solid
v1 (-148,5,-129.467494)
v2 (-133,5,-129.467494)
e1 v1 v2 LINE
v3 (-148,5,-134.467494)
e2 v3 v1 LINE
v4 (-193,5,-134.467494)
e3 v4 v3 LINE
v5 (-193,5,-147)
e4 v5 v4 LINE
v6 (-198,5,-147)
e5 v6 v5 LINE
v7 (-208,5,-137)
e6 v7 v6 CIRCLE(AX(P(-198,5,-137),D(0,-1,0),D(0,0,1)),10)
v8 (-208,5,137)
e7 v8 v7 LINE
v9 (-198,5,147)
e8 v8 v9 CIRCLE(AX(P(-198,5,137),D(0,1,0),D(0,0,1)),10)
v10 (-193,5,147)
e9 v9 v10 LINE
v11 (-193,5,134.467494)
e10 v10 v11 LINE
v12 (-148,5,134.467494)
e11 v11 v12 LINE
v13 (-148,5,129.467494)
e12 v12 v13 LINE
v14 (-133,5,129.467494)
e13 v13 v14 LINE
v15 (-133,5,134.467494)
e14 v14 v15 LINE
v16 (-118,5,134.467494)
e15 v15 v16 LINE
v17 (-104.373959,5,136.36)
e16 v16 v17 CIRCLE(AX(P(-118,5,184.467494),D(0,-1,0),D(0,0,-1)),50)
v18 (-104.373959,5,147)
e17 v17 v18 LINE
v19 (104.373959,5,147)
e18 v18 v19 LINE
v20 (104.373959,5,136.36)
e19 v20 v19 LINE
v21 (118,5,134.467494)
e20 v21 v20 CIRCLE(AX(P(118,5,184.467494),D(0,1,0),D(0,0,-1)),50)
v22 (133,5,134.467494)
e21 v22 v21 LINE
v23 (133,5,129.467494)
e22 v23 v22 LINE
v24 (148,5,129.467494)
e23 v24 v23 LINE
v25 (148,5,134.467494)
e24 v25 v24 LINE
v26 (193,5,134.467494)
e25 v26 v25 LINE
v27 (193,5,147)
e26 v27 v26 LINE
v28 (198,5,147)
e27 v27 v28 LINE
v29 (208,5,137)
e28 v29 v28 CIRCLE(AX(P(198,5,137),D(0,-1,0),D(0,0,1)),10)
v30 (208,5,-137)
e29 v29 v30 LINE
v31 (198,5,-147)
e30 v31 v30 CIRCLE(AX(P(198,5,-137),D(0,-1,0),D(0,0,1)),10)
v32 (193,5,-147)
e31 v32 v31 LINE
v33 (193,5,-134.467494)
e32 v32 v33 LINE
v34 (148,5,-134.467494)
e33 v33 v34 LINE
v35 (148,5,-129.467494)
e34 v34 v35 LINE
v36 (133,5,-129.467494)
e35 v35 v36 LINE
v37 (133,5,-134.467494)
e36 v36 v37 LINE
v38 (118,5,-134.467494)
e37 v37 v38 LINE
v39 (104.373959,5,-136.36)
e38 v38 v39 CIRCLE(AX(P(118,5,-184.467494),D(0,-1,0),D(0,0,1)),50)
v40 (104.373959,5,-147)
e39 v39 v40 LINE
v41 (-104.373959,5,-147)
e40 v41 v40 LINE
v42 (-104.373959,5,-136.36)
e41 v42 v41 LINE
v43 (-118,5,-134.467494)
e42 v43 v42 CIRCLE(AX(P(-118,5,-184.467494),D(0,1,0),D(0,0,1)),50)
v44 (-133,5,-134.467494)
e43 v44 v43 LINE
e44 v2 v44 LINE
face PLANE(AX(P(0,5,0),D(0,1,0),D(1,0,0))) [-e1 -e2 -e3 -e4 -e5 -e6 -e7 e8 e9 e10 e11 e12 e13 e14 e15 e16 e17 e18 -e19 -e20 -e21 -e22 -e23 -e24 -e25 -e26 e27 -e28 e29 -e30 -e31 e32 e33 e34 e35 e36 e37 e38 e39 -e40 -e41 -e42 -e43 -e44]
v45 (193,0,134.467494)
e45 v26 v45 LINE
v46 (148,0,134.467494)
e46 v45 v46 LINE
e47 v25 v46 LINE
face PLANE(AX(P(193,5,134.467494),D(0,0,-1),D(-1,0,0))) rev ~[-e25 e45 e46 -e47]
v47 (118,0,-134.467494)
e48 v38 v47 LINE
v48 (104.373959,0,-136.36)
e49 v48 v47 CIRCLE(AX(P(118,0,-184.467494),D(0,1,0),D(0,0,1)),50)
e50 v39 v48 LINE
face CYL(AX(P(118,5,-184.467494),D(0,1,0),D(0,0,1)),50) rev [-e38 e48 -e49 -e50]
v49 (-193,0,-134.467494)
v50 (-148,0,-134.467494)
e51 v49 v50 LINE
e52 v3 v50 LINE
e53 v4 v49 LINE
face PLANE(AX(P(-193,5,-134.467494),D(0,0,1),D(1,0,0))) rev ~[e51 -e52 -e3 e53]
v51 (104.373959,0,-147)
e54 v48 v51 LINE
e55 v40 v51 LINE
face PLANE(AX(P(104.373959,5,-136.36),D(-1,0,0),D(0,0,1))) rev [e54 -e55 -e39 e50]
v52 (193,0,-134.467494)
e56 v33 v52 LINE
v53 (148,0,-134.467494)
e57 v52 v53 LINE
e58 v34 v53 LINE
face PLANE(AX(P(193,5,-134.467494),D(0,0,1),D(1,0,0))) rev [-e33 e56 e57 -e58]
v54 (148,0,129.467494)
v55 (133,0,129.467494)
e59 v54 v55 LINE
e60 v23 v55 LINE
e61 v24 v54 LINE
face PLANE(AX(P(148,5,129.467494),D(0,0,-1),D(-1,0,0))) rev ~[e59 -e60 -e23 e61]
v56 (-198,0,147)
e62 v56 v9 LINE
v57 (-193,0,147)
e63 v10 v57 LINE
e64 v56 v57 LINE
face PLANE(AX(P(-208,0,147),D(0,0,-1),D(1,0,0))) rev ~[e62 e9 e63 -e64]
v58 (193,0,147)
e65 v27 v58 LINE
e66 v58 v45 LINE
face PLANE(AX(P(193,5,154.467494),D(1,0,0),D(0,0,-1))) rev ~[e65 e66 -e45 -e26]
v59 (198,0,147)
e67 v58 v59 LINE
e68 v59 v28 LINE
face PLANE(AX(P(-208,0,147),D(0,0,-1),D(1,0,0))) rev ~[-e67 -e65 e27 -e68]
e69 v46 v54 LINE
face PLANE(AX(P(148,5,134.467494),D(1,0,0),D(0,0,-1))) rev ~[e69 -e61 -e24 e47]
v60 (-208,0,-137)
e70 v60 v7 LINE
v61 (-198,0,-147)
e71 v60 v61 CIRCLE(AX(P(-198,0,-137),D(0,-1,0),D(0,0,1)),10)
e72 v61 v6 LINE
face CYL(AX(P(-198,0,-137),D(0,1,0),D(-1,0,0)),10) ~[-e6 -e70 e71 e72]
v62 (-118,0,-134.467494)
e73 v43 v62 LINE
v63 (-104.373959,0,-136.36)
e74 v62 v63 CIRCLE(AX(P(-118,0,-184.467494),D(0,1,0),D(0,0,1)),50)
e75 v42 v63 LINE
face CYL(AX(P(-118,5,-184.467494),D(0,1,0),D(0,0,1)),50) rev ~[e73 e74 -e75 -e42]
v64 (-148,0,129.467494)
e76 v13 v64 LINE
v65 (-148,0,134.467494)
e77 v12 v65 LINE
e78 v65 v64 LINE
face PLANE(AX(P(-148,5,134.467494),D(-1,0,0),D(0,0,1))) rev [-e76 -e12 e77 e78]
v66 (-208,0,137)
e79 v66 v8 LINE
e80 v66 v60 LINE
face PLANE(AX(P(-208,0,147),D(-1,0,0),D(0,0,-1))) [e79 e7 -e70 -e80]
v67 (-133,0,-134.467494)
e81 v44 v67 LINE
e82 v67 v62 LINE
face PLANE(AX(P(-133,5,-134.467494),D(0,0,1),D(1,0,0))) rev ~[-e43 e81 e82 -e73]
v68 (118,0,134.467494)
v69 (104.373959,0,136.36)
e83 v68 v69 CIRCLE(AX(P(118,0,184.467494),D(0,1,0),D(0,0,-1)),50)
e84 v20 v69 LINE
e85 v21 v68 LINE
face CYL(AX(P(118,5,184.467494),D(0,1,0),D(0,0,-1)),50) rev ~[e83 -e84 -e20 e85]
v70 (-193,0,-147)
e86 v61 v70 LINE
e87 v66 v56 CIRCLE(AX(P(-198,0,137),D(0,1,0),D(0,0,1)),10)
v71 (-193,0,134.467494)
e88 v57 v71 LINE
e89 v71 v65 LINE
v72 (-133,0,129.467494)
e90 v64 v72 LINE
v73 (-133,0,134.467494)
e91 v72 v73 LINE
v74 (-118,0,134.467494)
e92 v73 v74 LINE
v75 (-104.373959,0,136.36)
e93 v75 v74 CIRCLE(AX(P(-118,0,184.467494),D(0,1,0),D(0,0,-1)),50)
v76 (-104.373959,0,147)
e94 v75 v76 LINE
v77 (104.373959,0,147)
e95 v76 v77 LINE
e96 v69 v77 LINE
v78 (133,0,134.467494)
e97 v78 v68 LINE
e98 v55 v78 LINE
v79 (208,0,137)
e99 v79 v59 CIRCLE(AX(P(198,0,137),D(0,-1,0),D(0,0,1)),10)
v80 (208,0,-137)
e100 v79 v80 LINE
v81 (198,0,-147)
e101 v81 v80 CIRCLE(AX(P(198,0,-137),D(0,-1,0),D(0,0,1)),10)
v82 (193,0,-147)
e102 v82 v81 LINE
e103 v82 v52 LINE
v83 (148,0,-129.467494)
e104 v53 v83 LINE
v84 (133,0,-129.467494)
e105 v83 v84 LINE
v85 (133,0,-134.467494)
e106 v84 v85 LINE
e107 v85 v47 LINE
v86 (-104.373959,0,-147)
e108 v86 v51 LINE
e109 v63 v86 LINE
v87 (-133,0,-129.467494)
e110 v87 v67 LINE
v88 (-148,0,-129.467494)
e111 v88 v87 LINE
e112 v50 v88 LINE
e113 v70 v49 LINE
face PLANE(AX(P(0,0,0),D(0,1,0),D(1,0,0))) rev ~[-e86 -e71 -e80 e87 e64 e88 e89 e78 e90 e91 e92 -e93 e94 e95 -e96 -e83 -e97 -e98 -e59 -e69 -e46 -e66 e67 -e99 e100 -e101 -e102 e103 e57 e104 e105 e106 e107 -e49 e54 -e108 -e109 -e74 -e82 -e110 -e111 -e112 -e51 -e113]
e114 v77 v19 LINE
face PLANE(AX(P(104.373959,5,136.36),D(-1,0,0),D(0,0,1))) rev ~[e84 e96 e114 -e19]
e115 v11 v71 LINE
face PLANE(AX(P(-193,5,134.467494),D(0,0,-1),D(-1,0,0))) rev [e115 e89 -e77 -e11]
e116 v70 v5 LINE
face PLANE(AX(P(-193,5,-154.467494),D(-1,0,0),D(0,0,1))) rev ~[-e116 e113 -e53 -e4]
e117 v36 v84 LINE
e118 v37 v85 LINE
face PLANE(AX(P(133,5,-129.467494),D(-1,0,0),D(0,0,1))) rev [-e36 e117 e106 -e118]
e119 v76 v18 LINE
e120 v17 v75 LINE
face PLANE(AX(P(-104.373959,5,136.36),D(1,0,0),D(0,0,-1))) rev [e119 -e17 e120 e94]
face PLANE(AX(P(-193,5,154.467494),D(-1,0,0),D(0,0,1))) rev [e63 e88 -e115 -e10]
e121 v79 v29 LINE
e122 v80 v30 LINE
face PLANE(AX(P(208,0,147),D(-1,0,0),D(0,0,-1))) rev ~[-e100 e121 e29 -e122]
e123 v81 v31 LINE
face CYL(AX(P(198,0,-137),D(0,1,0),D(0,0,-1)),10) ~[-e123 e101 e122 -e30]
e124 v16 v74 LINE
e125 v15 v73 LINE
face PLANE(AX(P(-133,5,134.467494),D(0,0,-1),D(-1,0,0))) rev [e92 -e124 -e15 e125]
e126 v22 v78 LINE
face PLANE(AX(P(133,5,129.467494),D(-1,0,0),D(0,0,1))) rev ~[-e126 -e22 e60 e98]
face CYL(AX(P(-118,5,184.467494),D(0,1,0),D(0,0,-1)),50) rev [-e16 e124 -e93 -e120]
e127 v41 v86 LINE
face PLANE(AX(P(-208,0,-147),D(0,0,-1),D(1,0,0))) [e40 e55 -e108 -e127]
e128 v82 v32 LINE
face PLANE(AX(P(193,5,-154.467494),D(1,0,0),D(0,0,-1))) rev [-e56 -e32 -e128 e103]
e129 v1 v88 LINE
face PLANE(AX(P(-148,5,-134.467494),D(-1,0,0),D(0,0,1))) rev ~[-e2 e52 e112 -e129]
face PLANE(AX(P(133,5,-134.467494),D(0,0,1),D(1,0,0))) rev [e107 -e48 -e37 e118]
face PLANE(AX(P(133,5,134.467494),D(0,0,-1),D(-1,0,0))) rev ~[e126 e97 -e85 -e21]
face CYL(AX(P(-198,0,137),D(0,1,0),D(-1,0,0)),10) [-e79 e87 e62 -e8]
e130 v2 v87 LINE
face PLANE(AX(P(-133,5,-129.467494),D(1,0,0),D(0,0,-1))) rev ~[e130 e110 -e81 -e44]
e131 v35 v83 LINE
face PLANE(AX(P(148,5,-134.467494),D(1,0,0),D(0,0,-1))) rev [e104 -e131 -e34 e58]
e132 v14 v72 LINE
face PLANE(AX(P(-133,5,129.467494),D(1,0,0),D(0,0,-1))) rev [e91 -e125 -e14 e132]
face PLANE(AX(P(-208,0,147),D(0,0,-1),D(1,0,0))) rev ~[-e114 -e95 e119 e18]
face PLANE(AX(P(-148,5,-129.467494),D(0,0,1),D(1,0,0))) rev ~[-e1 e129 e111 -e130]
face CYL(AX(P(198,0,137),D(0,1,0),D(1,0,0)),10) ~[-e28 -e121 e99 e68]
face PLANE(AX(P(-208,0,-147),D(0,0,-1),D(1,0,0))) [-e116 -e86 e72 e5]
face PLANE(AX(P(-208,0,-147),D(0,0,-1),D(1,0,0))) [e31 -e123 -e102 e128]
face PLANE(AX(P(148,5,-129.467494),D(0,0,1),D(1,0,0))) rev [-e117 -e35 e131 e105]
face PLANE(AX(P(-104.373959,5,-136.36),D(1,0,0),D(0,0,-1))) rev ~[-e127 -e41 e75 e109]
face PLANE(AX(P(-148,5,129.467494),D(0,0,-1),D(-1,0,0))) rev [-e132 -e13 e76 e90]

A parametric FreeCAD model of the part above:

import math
import FreeCAD as App
import Part
import Sketcher
from FreeCAD import Vector


def edges_at(feature, points):
    """Names of the edges that pass closest to the given points."""
    edges = feature.Shape.Edges
    near = lambda p: min(range(len(edges)), key=lambda i: edges[i].distToShape(Part.Vertex(*p))[0])
    return sorted({f"Edge{near(p) + 1}" for p in points})


def add_polygon(sketch, points):
    """Adds a closed chain of lines whose ends are joined by coincident constraints."""
    first, n = sketch.GeometryCount, len(points)
    for a, b in zip(points, points[1:] + points[:1]):
        sketch.addGeometry(Part.LineSegment(App.Vector(*a, 0), App.Vector(*b, 0)), False)
    for i in range(n):
        sketch.addConstraint(Sketcher.Constraint("Coincident", first + i, 2, first + (i + 1) % n, 1))

doc = App.newDocument("Part")
body = doc.addObject("PartDesign::Body", "Body")

# Sketch on XZ plane
sketch1 = body.newObject("Sketcher::SketchObject", "Sketch")
sketch1.AttachmentSupport = (doc.getObject("XZ_Plane"), [""])
sketch1.MapMode = "FlatFace"
add_polygon(sketch1, [(-208, -147), (-208, 147), (208, 147), (208, -147)])  # lines 0-3
sketch1.addConstraint([
    Sketcher.Constraint("Vertical", 0),
    Sketcher.Constraint("Horizontal", 1),
    Sketcher.Constraint("Vertical", 2),
    Sketcher.Constraint("Horizontal", 3),
    Sketcher.Constraint("Symmetric", 0, 2, 2, 2, -1, 1),
    Sketcher.Constraint("DistanceX", 1, 1, 1, 2, 416.0),
    Sketcher.Constraint("DistanceY", 0, 1, 0, 2, 294.0),
])
pad1 = body.newObject("PartDesign::Pad", "Pad")
pad1.Profile = sketch1
pad1.Length = 5
pad1.Reversed = True

# Sketch on XZ plane
sketch2 = body.newObject("Sketcher::SketchObject", "Sketch001")
sketch2.AttachmentSupport = (doc.getObject("XZ_Plane"), [""])
sketch2.MapMode = "FlatFace"
sketch2.AttachmentOffset = App.Placement(Vector(0, 0, -5), App.Rotation())
sketch2.addGeometry([
    Part.LineSegment(Vector(-193, -154.467494, 0), Vector(-193, -134.467494, 0)),  # 0
    Part.LineSegment(Vector(-193, -134.467494, 0), Vector(-148, -134.467494, 0)),  # 1
    Part.LineSegment(Vector(-148, -134.467494, 0), Vector(-148, -129.467494, 0)),  # 2
    Part.LineSegment(Vector(-148, -129.467494, 0), Vector(-133, -129.467494, 0)),  # 3
    Part.LineSegment(Vector(-133, -129.467494, 0), Vector(-133, -134.467494, 0)),  # 4
    Part.LineSegment(Vector(-133, -134.467494, 0), Vector(-118, -134.467494, 0)),  # 5
    Part.ArcOfCircle(Part.Circle(Vector(-118, -184.467494, 0), Vector(0, 0, 1), 50), math.radians(74.185675), math.radians(90)),  # 6
    Part.LineSegment(Vector(-104.373959, -136.36, 0), Vector(-104.373959, -156.36, 0)),  # 7
    Part.LineSegment(Vector(-104.373959, -156.36, 0), Vector(-193.373959, -156.36, 0)),  # 8
    Part.LineSegment(Vector(-193.373959, -156.36, 0), Vector(-193, -154.467494, 0)),  # 9
], False)
sketch2.addConstraint([
    Sketcher.Constraint("Coincident", 0, 2, 1, 1),
    Sketcher.Constraint("Coincident", 1, 2, 2, 1),
    Sketcher.Constraint("Coincident", 2, 2, 3, 1),
    Sketcher.Constraint("Coincident", 3, 2, 4, 1),
    Sketcher.Constraint("Coincident", 4, 2, 5, 1),
    Sketcher.Constraint("Tangent", 5, 2, 6, 2),
    Sketcher.Constraint("Coincident", 6, 1, 7, 1),
    Sketcher.Constraint("Coincident", 7, 2, 8, 1),
    Sketcher.Constraint("Coincident", 8, 2, 9, 1),
    Sketcher.Constraint("Coincident", 9, 2, 0, 1),
    Sketcher.Constraint("Vertical", 0),
    Sketcher.Constraint("Horizontal", 1),
    Sketcher.Constraint("Vertical", 2),
    Sketcher.Constraint("Horizontal", 3),
    Sketcher.Constraint("Vertical", 4),
    Sketcher.Constraint("Horizontal", 5),
    Sketcher.Constraint("Vertical", 7),
    Sketcher.Constraint("Horizontal", 8),
    Sketcher.Constraint("Horizontal", 1, 2, 4, 2),
    Sketcher.Constraint("Equal", 3, 5),
    Sketcher.Constraint("Equal", 0, 7),
    Sketcher.Constraint("Radius", 6, 50.0),
    Sketcher.Constraint("DistanceX", 1, 1, 1, 2, 45.0),
    Sketcher.Constraint("DistanceX", 3, 1, 3, 2, 15.0),
    Sketcher.Constraint("DistanceX", 8, 2, 8, 1, 89.0),
    Sketcher.Constraint("DistanceY", 0, 1, 0, 2, 20.0),
    Sketcher.Constraint("DistanceY", 2, 1, 2, 2, 5.0),
    Sketcher.Constraint("DistanceX", 6, 3, -1, 1, 118.0),
    Sketcher.Constraint("DistanceY", 6, 1, -1, 1, 136.36),
    Sketcher.Constraint("Distance", 9, 1.929099),
])
pocket1 = body.newObject("PartDesign::Pocket", "Pocket")
pocket1.Profile = sketch2
pocket1.Type = "ThroughAll"
pocket1.Reversed = True
doc.recompute()

mirrored = body.newObject("PartDesign::Mirrored", "Mirrored")
mirrored.Originals = [pocket1]
mirrored.MirrorPlane = (doc.getObject("XY_Plane"), [""])
body.Tip = mirrored
doc.recompute()

mirrored2 = body.newObject("PartDesign::Mirrored", "Mirrored001")
mirrored2.Originals = [pocket1]
mirrored2.MirrorPlane = (doc.getObject("YZ_Plane"), [""])
body.Tip = mirrored2

# Sketch on XZ plane
sketch3 = body.newObject("Sketcher::SketchObject", "Sketch002")
sketch3.AttachmentSupport = (doc.getObject("XZ_Plane"), [""])
sketch3.MapMode = "FlatFace"
sketch3.AttachmentOffset = App.Placement(Vector(0, 0, -5), App.Rotation())
sketch3.addGeometry([
    Part.LineSegment(Vector(193, 154.467494, 0), Vector(193, 134.467494, 0)),  # 0
    Part.LineSegment(Vector(193, 134.467494, 0), Vector(148, 134.467494, 0)),  # 1
    Part.LineSegment(Vector(148, 134.467494, 0), Vector(148, 129.467494, 0)),  # 2
    Part.LineSegment(Vector(148, 129.467494, 0), Vector(133, 129.467494, 0)),  # 3
    Part.LineSegment(Vector(133, 129.467494, 0), Vector(133, 134.467494, 0)),  # 4
    Part.LineSegment(Vector(133, 134.467494, 0), Vector(118, 134.467494, 0)),  # 5
    Part.ArcOfCircle(Part.Circle(Vector(118, 184.467494, 0), Vector(0, 0, 1), 50), math.radians(-105.814325), math.radians(-90)),  # 6
    Part.LineSegment(Vector(104.373959, 136.36, 0), Vector(104.373959, 156.36, 0)),  # 7
    Part.LineSegment(Vector(104.373959, 156.36, 0), Vector(193.373959, 156.36, 0)),  # 8
    Part.LineSegment(Vector(193.373959, 156.36, 0), Vector(193, 154.467494, 0)),  # 9
], False)
sketch3.addConstraint([
    Sketcher.Constraint("Coincident", 0, 2, 1, 1),
    Sketcher.Constraint("Coincident", 1, 2, 2, 1),
    Sketcher.Constraint("Coincident", 2, 2, 3, 1),
    Sketcher.Constraint("Coincident", 3, 2, 4, 1),
    Sketcher.Constraint("Coincident", 4, 2, 5, 1),
    Sketcher.Constraint("Tangent", 5, 2, 6, 2),
    Sketcher.Constraint("Coincident", 6, 1, 7, 1),
    Sketcher.Constraint("Coincident", 7, 2, 8, 1),
    Sketcher.Constraint("Coincident", 8, 2, 9, 1),
    Sketcher.Constraint("Coincident", 9, 2, 0, 1),
    Sketcher.Constraint("Vertical", 0),
    Sketcher.Constraint("Horizontal", 1),
    Sketcher.Constraint("Vertical", 2),
    Sketcher.Constraint("Horizontal", 3),
    Sketcher.Constraint("Vertical", 4),
    Sketcher.Constraint("Horizontal", 5),
    Sketcher.Constraint("Vertical", 7),
    Sketcher.Constraint("Horizontal", 8),
    Sketcher.Constraint("Horizontal", 1, 2, 4, 2),
    Sketcher.Constraint("Equal", 3, 5),
    Sketcher.Constraint("Equal", 0, 7),
    Sketcher.Constraint("Radius", 6, 50.0),
    Sketcher.Constraint("DistanceX", 1, 2, 1, 1, 45.0),
    Sketcher.Constraint("DistanceX", 3, 2, 3, 1, 15.0),
    Sketcher.Constraint("DistanceX", 8, 1, 8, 2, 89.0),
    Sketcher.Constraint("DistanceY", 0, 2, 0, 1, 20.0),
    Sketcher.Constraint("DistanceY", 2, 2, 2, 1, 5.0),
    Sketcher.Constraint("DistanceX", -1, 1, 6, 3, 118.0),
    Sketcher.Constraint("DistanceY", -1, 1, 6, 1, 136.36),
    Sketcher.Constraint("Distance", 9, 1.929099),
])
pocket2 = body.newObject("PartDesign::Pocket", "Pocket001")
pocket2.Profile = sketch3
pocket2.Type = "ThroughAll"
pocket2.Reversed = True
doc.recompute()

fillet = body.newObject("PartDesign::Fillet", "Fillet")
fillet.Base = (pocket2, edges_at(pocket2, [
    (208, 2.5, 147),
    (-208, 2.5, 147),
    (-208, 2.5, -147),
    (208, 2.5, -147),
]))
fillet.Radius = 10

doc.recompute()
